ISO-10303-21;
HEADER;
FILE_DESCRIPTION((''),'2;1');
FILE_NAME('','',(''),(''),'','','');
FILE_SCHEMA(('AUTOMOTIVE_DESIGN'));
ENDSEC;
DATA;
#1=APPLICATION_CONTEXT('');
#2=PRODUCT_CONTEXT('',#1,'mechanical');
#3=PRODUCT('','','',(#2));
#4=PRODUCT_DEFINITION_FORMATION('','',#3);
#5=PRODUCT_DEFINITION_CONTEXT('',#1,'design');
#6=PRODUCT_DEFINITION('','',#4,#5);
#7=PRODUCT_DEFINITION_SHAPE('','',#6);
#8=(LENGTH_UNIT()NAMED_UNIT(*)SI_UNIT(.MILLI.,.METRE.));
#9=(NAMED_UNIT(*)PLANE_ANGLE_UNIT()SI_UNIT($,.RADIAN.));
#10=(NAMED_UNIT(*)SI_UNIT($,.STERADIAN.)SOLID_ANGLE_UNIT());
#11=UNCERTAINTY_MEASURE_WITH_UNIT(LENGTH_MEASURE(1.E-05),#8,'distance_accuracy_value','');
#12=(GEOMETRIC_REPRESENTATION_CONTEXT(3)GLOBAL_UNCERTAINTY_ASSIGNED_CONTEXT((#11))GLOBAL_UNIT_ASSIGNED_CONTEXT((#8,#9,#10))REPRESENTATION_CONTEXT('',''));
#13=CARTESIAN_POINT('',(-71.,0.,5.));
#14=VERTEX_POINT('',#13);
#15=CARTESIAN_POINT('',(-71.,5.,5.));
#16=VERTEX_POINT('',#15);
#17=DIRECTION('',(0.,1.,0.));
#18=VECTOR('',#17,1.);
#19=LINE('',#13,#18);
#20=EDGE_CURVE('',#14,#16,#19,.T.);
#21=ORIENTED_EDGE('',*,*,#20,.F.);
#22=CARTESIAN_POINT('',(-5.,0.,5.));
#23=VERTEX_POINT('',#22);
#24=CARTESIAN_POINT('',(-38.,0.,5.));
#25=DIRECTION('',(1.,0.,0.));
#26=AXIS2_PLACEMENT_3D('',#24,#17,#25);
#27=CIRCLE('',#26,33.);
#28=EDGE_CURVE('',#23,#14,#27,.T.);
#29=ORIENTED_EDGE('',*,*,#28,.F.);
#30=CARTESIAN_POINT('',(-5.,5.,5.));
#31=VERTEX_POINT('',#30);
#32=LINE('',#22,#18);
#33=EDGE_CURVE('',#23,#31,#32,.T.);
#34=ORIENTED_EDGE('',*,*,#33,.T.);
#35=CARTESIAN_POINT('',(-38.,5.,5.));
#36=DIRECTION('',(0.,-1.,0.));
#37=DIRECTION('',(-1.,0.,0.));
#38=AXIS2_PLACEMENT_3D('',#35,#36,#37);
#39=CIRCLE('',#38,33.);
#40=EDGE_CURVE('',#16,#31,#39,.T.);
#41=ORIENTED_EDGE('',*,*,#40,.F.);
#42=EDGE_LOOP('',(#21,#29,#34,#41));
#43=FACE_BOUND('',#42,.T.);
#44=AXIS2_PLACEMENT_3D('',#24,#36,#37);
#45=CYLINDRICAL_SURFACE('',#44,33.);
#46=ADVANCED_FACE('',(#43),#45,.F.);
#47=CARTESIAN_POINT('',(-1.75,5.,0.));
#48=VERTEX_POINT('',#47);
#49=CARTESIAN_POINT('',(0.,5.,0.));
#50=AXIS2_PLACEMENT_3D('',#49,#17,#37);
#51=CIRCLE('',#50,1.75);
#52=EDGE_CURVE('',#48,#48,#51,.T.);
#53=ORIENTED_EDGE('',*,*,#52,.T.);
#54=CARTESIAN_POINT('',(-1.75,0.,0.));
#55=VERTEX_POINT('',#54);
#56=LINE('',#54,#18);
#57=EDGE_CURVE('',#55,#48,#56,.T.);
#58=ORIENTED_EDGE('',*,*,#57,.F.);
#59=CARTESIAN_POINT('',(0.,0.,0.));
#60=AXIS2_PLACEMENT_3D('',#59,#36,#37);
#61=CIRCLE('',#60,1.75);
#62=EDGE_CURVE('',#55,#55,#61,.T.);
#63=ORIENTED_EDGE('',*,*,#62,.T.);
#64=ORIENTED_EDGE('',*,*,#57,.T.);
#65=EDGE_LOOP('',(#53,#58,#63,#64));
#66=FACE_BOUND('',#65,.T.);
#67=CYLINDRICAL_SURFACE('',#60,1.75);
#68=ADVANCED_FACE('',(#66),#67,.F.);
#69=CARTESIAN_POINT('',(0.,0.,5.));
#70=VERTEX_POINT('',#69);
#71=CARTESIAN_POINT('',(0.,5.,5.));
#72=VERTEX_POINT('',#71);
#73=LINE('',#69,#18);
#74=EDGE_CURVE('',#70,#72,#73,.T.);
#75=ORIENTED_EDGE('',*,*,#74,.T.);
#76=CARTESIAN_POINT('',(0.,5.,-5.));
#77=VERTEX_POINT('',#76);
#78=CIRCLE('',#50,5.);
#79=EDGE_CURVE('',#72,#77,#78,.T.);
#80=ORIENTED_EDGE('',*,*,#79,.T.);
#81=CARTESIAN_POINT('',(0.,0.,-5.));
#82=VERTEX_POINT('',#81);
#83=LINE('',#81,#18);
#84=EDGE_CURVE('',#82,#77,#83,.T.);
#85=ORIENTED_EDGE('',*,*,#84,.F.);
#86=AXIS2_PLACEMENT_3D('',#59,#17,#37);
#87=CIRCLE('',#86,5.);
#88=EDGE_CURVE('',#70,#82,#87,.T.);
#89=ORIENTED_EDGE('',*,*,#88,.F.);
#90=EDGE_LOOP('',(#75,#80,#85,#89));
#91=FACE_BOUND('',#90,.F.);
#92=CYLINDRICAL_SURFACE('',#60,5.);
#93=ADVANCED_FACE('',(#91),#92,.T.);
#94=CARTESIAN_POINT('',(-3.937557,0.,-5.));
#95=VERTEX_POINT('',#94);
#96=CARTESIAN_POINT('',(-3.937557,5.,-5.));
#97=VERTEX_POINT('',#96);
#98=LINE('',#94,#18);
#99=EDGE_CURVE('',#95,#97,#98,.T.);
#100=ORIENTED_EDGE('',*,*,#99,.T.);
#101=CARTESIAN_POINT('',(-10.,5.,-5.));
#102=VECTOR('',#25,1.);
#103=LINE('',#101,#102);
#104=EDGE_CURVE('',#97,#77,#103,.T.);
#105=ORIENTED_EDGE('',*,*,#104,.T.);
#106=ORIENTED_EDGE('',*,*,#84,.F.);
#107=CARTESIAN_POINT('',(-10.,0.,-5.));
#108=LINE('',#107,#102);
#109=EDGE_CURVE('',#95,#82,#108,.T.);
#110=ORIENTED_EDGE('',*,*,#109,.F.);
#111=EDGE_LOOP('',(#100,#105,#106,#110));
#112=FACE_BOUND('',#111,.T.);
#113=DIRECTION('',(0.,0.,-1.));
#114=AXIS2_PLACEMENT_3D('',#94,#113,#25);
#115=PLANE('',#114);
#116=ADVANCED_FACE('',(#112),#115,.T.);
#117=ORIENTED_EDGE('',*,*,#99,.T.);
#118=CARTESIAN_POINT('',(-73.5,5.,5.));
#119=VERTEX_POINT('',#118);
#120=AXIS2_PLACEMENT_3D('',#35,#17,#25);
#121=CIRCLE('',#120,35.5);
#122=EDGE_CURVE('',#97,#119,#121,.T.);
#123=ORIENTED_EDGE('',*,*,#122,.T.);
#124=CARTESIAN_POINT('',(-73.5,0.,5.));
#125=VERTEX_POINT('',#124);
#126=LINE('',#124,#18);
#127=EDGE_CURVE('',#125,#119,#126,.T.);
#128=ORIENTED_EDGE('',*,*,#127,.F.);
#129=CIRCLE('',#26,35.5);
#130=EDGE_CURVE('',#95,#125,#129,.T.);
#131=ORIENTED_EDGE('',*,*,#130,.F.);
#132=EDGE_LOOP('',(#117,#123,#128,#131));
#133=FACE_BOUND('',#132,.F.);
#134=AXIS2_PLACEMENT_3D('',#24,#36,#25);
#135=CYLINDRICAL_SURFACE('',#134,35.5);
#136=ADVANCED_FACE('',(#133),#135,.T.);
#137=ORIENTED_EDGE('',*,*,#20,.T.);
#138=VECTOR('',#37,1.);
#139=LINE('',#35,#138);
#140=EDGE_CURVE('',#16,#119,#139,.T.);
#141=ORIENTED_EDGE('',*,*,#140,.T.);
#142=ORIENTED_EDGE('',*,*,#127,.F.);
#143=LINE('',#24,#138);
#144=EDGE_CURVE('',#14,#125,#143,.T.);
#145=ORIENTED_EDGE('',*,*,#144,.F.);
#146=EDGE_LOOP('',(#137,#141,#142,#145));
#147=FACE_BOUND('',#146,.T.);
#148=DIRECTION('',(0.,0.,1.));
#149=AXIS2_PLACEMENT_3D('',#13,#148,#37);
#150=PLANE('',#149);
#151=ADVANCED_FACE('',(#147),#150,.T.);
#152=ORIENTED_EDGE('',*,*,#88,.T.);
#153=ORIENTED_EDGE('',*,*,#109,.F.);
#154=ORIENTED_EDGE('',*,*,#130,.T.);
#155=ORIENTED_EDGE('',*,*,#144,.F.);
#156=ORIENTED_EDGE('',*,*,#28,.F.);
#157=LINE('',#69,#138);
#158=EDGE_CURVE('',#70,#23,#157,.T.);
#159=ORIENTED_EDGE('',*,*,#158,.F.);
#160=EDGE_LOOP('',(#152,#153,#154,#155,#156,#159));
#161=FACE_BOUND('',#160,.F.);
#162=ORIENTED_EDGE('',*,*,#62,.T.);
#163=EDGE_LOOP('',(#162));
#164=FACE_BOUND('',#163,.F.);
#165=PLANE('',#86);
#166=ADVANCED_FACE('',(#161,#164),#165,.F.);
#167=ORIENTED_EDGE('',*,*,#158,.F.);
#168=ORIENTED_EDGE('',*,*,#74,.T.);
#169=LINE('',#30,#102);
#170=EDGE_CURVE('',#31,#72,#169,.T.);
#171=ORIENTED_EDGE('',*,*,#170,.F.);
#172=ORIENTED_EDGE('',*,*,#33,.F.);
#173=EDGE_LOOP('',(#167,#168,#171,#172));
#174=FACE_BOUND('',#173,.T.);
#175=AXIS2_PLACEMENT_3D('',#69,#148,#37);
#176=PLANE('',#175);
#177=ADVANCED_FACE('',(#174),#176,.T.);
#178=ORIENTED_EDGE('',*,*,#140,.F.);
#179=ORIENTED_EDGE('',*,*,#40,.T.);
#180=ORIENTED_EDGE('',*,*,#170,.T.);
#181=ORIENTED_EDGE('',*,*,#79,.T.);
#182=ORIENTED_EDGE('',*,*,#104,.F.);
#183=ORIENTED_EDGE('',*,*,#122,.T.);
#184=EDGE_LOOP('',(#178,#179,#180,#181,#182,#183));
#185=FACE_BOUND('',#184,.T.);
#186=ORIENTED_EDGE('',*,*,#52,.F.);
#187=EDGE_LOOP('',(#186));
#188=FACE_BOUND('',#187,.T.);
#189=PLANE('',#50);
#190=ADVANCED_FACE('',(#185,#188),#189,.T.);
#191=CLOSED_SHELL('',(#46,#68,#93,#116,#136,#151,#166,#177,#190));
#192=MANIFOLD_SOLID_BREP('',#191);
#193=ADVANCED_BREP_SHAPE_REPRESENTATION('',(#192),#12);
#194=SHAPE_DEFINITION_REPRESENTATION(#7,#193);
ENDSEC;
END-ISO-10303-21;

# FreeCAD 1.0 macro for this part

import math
import FreeCAD as App
import Part
import Sketcher
from FreeCAD import Vector
Q = App.Units.Quantity

doc = App.newDocument("Part")
body = doc.addObject("PartDesign::Body", "Body")

sketch1 = doc.addObject("Sketcher::SketchObject", "Sketch")
body.addObject(sketch1)
sketch1.AttachmentSupport = (doc.XZ_Plane, [""])
sketch1.MapMode = "FlatFace"
sketch1.addGeometry(Part.ArcOfCircle(Part.Circle(Vector(0, 0, 0), Vector(0, 0, 1), 5), math.radians(-90), math.radians(90)), False)
sketch1.addGeometry(Part.LineSegment(Vector(0, -5, 0), Vector(-3.9, -5, 0)), False)
sketch1.addGeometry(Part.ArcOfCircle(Part.Circle(Vector(-38, 5, 0), Vector(0, 0, 1), 35.5), math.radians(180), math.radians(344)), False)
sketch1.addGeometry(Part.LineSegment(Vector(-73.5, 5, 0), Vector(-71, 5, 0)), False)
sketch1.addGeometry(Part.ArcOfCircle(Part.Circle(Vector(-38, 5, 0), Vector(0, 0, 1), 33), math.radians(180), math.radians(360)), False)
sketch1.addGeometry(Part.LineSegment(Vector(-5, 5, 0), Vector(0, 5, 0)), False)
sketch1.addGeometry(Part.Circle(Vector(0, 0, 0), Vector(0, 0, 1), 1.8), False)
sketch1.addConstraint(Sketcher.Constraint("Tangent", 0, 1, 1, 1))
sketch1.addConstraint(Sketcher.Constraint("Coincident", 1, 2, 2, 2))
sketch1.addConstraint(Sketcher.Constraint("Coincident", 2, 1, 3, 1))
sketch1.addConstraint(Sketcher.Constraint("Coincident", 3, 2, 4, 1))
sketch1.addConstraint(Sketcher.Constraint("Coincident", 4, 2, 5, 1))
sketch1.addConstraint(Sketcher.Constraint("Tangent", 5, 2, 0, 2))
sketch1.addConstraint(Sketcher.Constraint("Horizontal", 1))
sketch1.addConstraint(Sketcher.Constraint("Horizontal", 3))
sketch1.addConstraint(Sketcher.Constraint("Horizontal", 5))
sketch1.addConstraint(Sketcher.Constraint("Coincident", 0, 3, -1, 1))
sketch1.addConstraint(Sketcher.Constraint("Coincident", 6, 3, -1, 1))
sketch1.addConstraint(Sketcher.Constraint("Coincident", 4, 3, 2, 3))
sketch1.addConstraint(Sketcher.Constraint("Horizontal", 4, 3, 2, 1))
sketch1.addConstraint(Sketcher.Constraint("Horizontal", 3, 2, 4, 2))
sketch1.addConstraint(Sketcher.Constraint("Radius", 0, Q("5 mm")))
sketch1.addConstraint(Sketcher.Constraint("Radius", 4, Q("33 mm")))
sketch1.addConstraint(Sketcher.Constraint("Diameter", 6, Q("3.5 mm")))
sketch1.addConstraint(Sketcher.Constraint("Radius", 2, Q("35.5 mm")))
sketch1.addConstraint(Sketcher.Constraint("DistanceX", 3, 2, -1, 1, Q("71 mm")))
pad1 = doc.addObject("PartDesign::Pad", "Pad")
body.addObject(pad1)
pad1.Profile = sketch1
pad1.Length = 5
pad1.Reversed = True

doc.recompute()
